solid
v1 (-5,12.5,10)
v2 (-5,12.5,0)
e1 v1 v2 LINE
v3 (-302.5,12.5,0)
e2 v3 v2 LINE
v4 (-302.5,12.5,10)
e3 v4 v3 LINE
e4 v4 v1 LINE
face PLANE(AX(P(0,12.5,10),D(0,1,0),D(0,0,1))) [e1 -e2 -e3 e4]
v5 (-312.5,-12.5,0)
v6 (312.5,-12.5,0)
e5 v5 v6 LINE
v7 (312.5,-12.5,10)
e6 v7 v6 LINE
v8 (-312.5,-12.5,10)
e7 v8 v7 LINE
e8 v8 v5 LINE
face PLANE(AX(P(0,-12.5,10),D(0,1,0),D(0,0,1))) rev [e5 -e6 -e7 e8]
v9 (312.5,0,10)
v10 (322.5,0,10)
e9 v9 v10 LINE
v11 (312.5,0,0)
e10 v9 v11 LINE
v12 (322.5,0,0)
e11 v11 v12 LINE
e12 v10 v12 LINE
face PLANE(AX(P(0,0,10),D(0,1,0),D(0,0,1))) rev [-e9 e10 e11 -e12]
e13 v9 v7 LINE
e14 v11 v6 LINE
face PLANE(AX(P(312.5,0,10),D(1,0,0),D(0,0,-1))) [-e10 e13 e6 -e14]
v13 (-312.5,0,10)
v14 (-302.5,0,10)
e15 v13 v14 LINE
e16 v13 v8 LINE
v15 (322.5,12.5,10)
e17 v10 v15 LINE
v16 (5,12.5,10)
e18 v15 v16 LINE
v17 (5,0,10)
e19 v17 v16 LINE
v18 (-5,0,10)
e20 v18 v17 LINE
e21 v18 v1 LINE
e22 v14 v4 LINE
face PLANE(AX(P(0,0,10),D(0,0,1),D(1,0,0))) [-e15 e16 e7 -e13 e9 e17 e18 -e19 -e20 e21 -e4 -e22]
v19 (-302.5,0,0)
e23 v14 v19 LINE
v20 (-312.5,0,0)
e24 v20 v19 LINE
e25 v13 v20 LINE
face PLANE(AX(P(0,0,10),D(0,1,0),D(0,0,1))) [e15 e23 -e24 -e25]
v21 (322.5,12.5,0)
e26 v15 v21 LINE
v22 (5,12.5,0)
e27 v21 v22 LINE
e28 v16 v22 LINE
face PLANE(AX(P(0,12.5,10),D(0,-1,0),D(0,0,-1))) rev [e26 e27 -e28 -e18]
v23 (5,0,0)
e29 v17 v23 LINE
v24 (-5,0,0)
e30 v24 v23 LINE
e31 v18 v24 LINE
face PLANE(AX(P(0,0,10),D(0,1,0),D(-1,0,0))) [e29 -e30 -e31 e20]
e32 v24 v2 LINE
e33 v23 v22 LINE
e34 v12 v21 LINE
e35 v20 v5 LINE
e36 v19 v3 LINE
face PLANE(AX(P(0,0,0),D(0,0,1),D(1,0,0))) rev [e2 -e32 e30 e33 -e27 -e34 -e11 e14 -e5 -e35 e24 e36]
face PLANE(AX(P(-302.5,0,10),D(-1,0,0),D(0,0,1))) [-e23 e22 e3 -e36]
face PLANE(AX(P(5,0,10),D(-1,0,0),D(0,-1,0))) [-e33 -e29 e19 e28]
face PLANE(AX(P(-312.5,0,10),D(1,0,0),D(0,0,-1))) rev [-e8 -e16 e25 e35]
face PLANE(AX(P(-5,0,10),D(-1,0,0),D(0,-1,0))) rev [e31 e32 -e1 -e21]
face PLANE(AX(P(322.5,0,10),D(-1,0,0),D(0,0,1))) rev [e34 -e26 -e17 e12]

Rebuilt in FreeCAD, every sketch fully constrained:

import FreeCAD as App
import Part
import Sketcher

doc = App.newDocument("Part")
params = doc.addObject("Spreadsheet::Sheet", "Params")
for row, (alias, value) in enumerate([
    ("sketch1_width", "10 mm"),
    ("sketch1_width2", "625 mm"),
    ("sketch1_height", "12.5 mm"),
    ("pad1_length", "10 mm"),
], start=1):
    params.set(f"A{row}", alias)
    params.set(f"B{row}", "=" + value)
    params.setAlias(f"B{row}", alias)

body = doc.addObject("PartDesign::Body", "Body")

# Sketch on XY plane
sketch1 = body.newObject("Sketcher::SketchObject", "Sketch")
sketch1.AttachmentSupport = (doc.getObject("XY_Plane"), [""])
sketch1.MapMode = "FlatFace"
sketch1.addGeometry([
    Part.LineSegment(App.Vector(5, 0, 0), App.Vector(-5, 0, 0)),  # 0
    Part.LineSegment(App.Vector(-5, 0, 0), App.Vector(-5, 12.5, 0)),  # 1
    Part.LineSegment(App.Vector(-5, 12.5, 0), App.Vector(-302.5, 12.5, 0)),  # 2
    Part.LineSegment(App.Vector(-302.5, 12.5, 0), App.Vector(-302.5, 0, 0)),  # 3
    Part.LineSegment(App.Vector(-302.5, 0, 0), App.Vector(-312.5, 0, 0)),  # 4
    Part.LineSegment(App.Vector(-312.5, 0, 0), App.Vector(-312.5, -12.5, 0)),  # 5
    Part.LineSegment(App.Vector(-312.5, -12.5, 0), App.Vector(312.5, -12.5, 0)),  # 6
    Part.LineSegment(App.Vector(312.5, -12.5, 0), App.Vector(312.5, 0, 0)),  # 7
    Part.LineSegment(App.Vector(312.5, 0, 0), App.Vector(322.5, 0, 0)),  # 8
    Part.LineSegment(App.Vector(322.5, 0, 0), App.Vector(322.5, 12.5, 0)),  # 9
    Part.LineSegment(App.Vector(322.5, 12.5, 0), App.Vector(5, 12.5, 0)),  # 10
    Part.LineSegment(App.Vector(5, 12.5, 0), App.Vector(5, 0, 0)),  # 11
], False)
sketch1.addConstraint([
    Sketcher.Constraint("Coincident", 0, 2, 1, 1),
    Sketcher.Constraint("Coincident", 1, 2, 2, 1),
    Sketcher.Constraint("Coincident", 2, 2, 3, 1),
    Sketcher.Constraint("Coincident", 3, 2, 4, 1),
    Sketcher.Constraint("Coincident", 4, 2, 5, 1),
    Sketcher.Constraint("Coincident", 5, 2, 6, 1),
    Sketcher.Constraint("Coincident", 6, 2, 7, 1),
    Sketcher.Constraint("Coincident", 7, 2, 8, 1),
    Sketcher.Constraint("Coincident", 8, 2, 9, 1),
    Sketcher.Constraint("Coincident", 9, 2, 10, 1),
    Sketcher.Constraint("Coincident", 10, 2, 11, 1),
    Sketcher.Constraint("Coincident", 11, 2, 0, 1),
    Sketcher.Constraint("Horizontal", 0),
    Sketcher.Constraint("Vertical", 1),
    Sketcher.Constraint("Horizontal", 2),
    Sketcher.Constraint("Vertical", 3),
    Sketcher.Constraint("Horizontal", 4),
    Sketcher.Constraint("Vertical", 5),
    Sketcher.Constraint("Horizontal", 6),
    Sketcher.Constraint("Vertical", 7),
    Sketcher.Constraint("Horizontal", 8),
    Sketcher.Constraint("Vertical", 9),
    Sketcher.Constraint("Horizontal", 10),
    Sketcher.Constraint("Vertical", 11),
    Sketcher.Constraint("Symmetric", 4, 2, 7, 2, -1, 1),
    Sketcher.Constraint("Symmetric", 0, 2, 11, 2, -1, 1),
    Sketcher.Constraint("PointOnObject", 3, 2, -1),
    Sketcher.Constraint("Horizontal", 2, 2, 9, 2),
    Sketcher.Constraint("Equal", 0, 4),
    Sketcher.Constraint("Equal", 4, 8),
    Sketcher.Constraint("Equal", 3, 5),
    Sketcher.Constraint("DistanceX", 0, 2, 0, 1, 10.0),
    Sketcher.Constraint("DistanceX", 6, 1, 6, 2, 625.0),
    Sketcher.Constraint("DistanceY", 1, 1, 1, 2, 12.5),
])
sketch1.setExpression("Constraints[31]", "Params.sketch1_width")
sketch1.setExpression("Constraints[32]", "Params.sketch1_width2")
sketch1.setExpression("Constraints[33]", "Params.sketch1_height")
pad1 = body.newObject("PartDesign::Pad", "Pad")
pad1.Profile = sketch1
pad1.setExpression("Length", "Params.pad1_length")

doc.recompute()
